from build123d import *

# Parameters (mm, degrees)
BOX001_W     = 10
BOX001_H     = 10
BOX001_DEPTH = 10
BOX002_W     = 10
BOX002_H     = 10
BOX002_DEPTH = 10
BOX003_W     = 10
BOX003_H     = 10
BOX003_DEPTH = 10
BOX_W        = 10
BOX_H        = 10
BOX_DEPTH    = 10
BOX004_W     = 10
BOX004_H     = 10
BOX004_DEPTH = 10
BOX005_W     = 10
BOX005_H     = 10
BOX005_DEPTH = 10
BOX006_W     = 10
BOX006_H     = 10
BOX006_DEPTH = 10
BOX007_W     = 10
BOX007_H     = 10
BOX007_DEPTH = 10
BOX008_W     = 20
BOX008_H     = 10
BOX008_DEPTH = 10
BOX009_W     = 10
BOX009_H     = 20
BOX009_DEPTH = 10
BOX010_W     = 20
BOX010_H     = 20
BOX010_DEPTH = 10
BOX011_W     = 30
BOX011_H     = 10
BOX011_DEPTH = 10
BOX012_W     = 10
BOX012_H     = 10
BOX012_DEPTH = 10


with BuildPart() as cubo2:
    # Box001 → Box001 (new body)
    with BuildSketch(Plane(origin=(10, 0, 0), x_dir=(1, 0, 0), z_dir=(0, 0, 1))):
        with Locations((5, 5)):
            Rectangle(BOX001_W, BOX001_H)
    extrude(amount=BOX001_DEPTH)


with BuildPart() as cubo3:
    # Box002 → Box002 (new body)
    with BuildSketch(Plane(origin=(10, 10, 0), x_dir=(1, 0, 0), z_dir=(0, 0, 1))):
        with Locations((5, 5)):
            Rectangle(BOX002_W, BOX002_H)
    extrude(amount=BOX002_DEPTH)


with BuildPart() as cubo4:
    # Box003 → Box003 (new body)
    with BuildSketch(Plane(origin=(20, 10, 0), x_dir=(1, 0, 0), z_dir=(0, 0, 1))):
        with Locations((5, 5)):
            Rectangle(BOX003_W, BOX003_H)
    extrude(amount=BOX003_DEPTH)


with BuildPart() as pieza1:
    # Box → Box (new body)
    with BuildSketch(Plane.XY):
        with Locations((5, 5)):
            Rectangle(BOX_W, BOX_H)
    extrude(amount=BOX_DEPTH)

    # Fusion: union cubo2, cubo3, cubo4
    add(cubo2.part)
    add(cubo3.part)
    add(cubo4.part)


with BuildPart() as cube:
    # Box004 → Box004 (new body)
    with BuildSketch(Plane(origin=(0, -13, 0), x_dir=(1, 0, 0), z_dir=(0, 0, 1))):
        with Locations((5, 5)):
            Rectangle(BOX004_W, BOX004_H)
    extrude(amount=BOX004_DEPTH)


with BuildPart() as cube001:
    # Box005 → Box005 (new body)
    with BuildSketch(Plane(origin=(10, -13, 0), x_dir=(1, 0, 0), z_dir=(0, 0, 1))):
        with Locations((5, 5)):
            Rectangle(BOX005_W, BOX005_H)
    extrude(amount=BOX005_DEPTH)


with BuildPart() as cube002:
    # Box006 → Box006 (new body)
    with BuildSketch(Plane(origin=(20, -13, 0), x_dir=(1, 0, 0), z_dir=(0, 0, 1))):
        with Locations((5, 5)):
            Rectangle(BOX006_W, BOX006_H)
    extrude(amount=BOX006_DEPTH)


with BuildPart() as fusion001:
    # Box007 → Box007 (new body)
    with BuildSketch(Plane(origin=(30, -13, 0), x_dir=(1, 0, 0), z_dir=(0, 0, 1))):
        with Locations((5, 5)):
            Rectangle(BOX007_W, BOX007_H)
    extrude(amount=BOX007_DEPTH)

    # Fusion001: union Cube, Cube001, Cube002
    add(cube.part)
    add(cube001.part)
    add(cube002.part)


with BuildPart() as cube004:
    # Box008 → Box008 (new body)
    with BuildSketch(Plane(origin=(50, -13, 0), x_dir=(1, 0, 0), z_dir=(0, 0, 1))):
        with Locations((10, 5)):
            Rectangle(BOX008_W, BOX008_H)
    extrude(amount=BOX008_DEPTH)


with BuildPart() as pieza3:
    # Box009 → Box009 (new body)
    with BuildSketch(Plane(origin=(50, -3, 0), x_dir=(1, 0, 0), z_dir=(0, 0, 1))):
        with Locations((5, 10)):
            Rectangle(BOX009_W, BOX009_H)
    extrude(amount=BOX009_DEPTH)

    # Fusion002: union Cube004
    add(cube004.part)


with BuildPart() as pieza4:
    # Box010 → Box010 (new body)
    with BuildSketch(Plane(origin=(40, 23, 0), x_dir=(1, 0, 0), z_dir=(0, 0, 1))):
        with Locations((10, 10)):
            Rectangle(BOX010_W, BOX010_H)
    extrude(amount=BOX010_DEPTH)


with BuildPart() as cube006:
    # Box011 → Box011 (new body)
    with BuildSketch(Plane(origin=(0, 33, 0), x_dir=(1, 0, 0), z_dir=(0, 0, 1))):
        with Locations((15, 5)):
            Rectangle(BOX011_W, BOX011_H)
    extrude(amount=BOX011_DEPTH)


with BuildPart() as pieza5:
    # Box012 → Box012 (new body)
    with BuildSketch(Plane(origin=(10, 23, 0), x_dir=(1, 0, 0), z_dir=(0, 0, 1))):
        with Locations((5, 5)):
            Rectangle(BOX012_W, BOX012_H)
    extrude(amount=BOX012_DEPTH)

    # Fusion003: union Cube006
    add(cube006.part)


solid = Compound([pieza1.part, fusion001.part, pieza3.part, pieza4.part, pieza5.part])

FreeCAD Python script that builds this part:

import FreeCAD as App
import Part
import Sketcher


def add_polygon(sketch, points):
    """Adds a closed chain of lines whose ends are joined by coincident constraints."""
    first, n = sketch.GeometryCount, len(points)
    for a, b in zip(points, points[1:] + points[:1]):
        sketch.addGeometry(Part.LineSegment(App.Vector(*a, 0), App.Vector(*b, 0)), False)
    for i in range(n):
        sketch.addConstraint(Sketcher.Constraint("Coincident", first + i, 2, first + (i + 1) % n, 1))

doc = App.newDocument("Part")
body = doc.addObject("PartDesign::Body", "Body")

# Sketch on XY plane
sketch1 = body.newObject("Sketcher::SketchObject", "Sketch")
sketch1.AttachmentSupport = (doc.getObject("XY_Plane"), [""])
sketch1.MapMode = "FlatFace"
add_polygon(sketch1, [(10, 10), (10, 0), (20, 0), (20, 10)])  # lines 0-3
sketch1.addConstraint([
    Sketcher.Constraint("Vertical", 0),
    Sketcher.Constraint("Horizontal", 1),
    Sketcher.Constraint("Vertical", 2),
    Sketcher.Constraint("Horizontal", 3),
    Sketcher.Constraint("PointOnObject", 0, 2, -1),
    Sketcher.Constraint("Equal", 3, 0),
    Sketcher.Constraint("DistanceX", 1, 1, 1, 2, 10.0),
    Sketcher.Constraint("DistanceX", -1, 1, 0, 2, 10.0),
])
pad1 = body.newObject("PartDesign::Pad", "Pad")
pad1.Profile = sketch1
pad1.Length = 10
body2 = doc.addObject("PartDesign::Body", "Body001")

# Sketch on XY plane
sketch2 = body2.newObject("Sketcher::SketchObject", "Sketch001")
sketch2.AttachmentSupport = (doc.getObject("XY_Plane001"), [""])
sketch2.MapMode = "FlatFace"
add_polygon(sketch2, [(10, 20), (10, 10), (20, 10), (20, 20)])  # lines 0-3
sketch2.addConstraint([
    Sketcher.Constraint("Vertical", 0),
    Sketcher.Constraint("Horizontal", 1),
    Sketcher.Constraint("Vertical", 2),
    Sketcher.Constraint("Horizontal", 3),
    Sketcher.Constraint("Equal", 3, 0),
    Sketcher.Constraint("DistanceX", 1, 1, 1, 2, 10.0),
    Sketcher.Constraint("DistanceX", -1, 1, 0, 2, 10.0),
    Sketcher.Constraint("DistanceY", -1, 1, 0, 2, 10.0),
])
pad2 = body2.newObject("PartDesign::Pad", "Pad001")
pad2.Profile = sketch2
pad2.Length = 10
body3 = doc.addObject("PartDesign::Body", "Body002")

# Sketch on XY plane
sketch3 = body3.newObject("Sketcher::SketchObject", "Sketch002")
sketch3.AttachmentSupport = (doc.getObject("XY_Plane002"), [""])
sketch3.MapMode = "FlatFace"
add_polygon(sketch3, [(20, 20), (20, 10), (30, 10), (30, 20)])  # lines 0-3
sketch3.addConstraint([
    Sketcher.Constraint("Vertical", 0),
    Sketcher.Constraint("Horizontal", 1),
    Sketcher.Constraint("Vertical", 2),
    Sketcher.Constraint("Horizontal", 3),
    Sketcher.Constraint("Equal", 3, 0),
    Sketcher.Constraint("DistanceX", 1, 1, 1, 2, 10.0),
    Sketcher.Constraint("DistanceX", -1, 1, 0, 2, 20.0),
    Sketcher.Constraint("DistanceY", -1, 1, 0, 2, 10.0),
])
pad3 = body3.newObject("PartDesign::Pad", "Pad002")
pad3.Profile = sketch3
pad3.Length = 10
body4 = doc.addObject("PartDesign::Body", "Body003")

# Sketch on XY plane
sketch4 = body4.newObject("Sketcher::SketchObject", "Sketch003")
sketch4.AttachmentSupport = (doc.getObject("XY_Plane003"), [""])
sketch4.MapMode = "FlatFace"
add_polygon(sketch4, [(0, 10), (0, 0), (10, 0), (10, 10)])  # lines 0-3
sketch4.addConstraint([
    Sketcher.Constraint("Vertical", 0),
    Sketcher.Constraint("Horizontal", 1),
    Sketcher.Constraint("Vertical", 2),
    Sketcher.Constraint("Horizontal", 3),
    Sketcher.Constraint("Coincident", 0, 2, -1, 1),
    Sketcher.Constraint("Equal", 3, 0),
    Sketcher.Constraint("DistanceX", 1, 1, 1, 2, 10.0),
])
pad4 = body4.newObject("PartDesign::Pad", "Pad003")
pad4.Profile = sketch4
pad4.Length = 10
doc.recompute()

boolean = body4.newObject("PartDesign::Boolean", "Boolean")
boolean.Type = "Fuse"
boolean.addObjects([body])
doc.recompute()

boolean2 = body4.newObject("PartDesign::Boolean", "Boolean001")
boolean2.Type = "Fuse"
boolean2.addObjects([body2])
doc.recompute()

boolean3 = body4.newObject("PartDesign::Boolean", "Boolean002")
boolean3.Type = "Fuse"
boolean3.addObjects([body3])
body5 = doc.addObject("PartDesign::Body", "Body004")

# Sketch on XY plane
sketch5 = body5.newObject("Sketcher::SketchObject", "Sketch004")
sketch5.AttachmentSupport = (doc.getObject("XY_Plane004"), [""])
sketch5.MapMode = "FlatFace"
add_polygon(sketch5, [(0, -3), (0, -13), (10, -13), (10, -3)])  # lines 0-3
sketch5.addConstraint([
    Sketcher.Constraint("Vertical", 0),
    Sketcher.Constraint("Horizontal", 1),
    Sketcher.Constraint("Vertical", 2),
    Sketcher.Constraint("Horizontal", 3),
    Sketcher.Constraint("PointOnObject", 0, 2, -2),
    Sketcher.Constraint("Equal", 3, 0),
    Sketcher.Constraint("DistanceX", 1, 1, 1, 2, 10.0),
    Sketcher.Constraint("DistanceY", 0, 2, -1, 1, 13.0),
])
pad5 = body5.newObject("PartDesign::Pad", "Pad004")
pad5.Profile = sketch5
pad5.Length = 10
body6 = doc.addObject("PartDesign::Body", "Body005")

# Sketch on XY plane
sketch6 = body6.newObject("Sketcher::SketchObject", "Sketch005")
sketch6.AttachmentSupport = (doc.getObject("XY_Plane005"), [""])
sketch6.MapMode = "FlatFace"
add_polygon(sketch6, [(10, -3), (10, -13), (20, -13), (20, -3)])  # lines 0-3
sketch6.addConstraint([
    Sketcher.Constraint("Vertical", 0),
    Sketcher.Constraint("Horizontal", 1),
    Sketcher.Constraint("Vertical", 2),
    Sketcher.Constraint("Horizontal", 3),
    Sketcher.Constraint("Equal", 3, 0),
    Sketcher.Constraint("DistanceX", 1, 1, 1, 2, 10.0),
    Sketcher.Constraint("DistanceX", -1, 1, 0, 2, 10.0),
    Sketcher.Constraint("DistanceY", 0, 2, -1, 1, 13.0),
])
pad6 = body6.newObject("PartDesign::Pad", "Pad005")
pad6.Profile = sketch6
pad6.Length = 10
body7 = doc.addObject("PartDesign::Body", "Body006")

# Sketch on XY plane
sketch7 = body7.newObject("Sketcher::SketchObject", "Sketch006")
sketch7.AttachmentSupport = (doc.getObject("XY_Plane006"), [""])
sketch7.MapMode = "FlatFace"
add_polygon(sketch7, [(20, -3), (20, -13), (30, -13), (30, -3)])  # lines 0-3
sketch7.addConstraint([
    Sketcher.Constraint("Vertical", 0),
    Sketcher.Constraint("Horizontal", 1),
    Sketcher.Constraint("Vertical", 2),
    Sketcher.Constraint("Horizontal", 3),
    Sketcher.Constraint("Equal", 3, 0),
    Sketcher.Constraint("DistanceX", 1, 1, 1, 2, 10.0),
    Sketcher.Constraint("DistanceX", -1, 1, 0, 2, 20.0),
    Sketcher.Constraint("DistanceY", 0, 2, -1, 1, 13.0),
])
pad7 = body7.newObject("PartDesign::Pad", "Pad006")
pad7.Profile = sketch7
pad7.Length = 10
body8 = doc.addObject("PartDesign::Body", "Body007")
body8.AllowCompound = True

# Sketch on XY plane
sketch8 = body8.newObject("Sketcher::SketchObject", "Sketch007")
sketch8.AttachmentSupport = (doc.getObject("XY_Plane007"), [""])
sketch8.MapMode = "FlatFace"
add_polygon(sketch8, [(30, -3), (30, -13), (40, -13), (40, -3)])  # lines 0-3
sketch8.addConstraint([
    Sketcher.Constraint("Vertical", 0),
    Sketcher.Constraint("Horizontal", 1),
    Sketcher.Constraint("Vertical", 2),
    Sketcher.Constraint("Horizontal", 3),
    Sketcher.Constraint("Equal", 3, 0),
    Sketcher.Constraint("DistanceX", 1, 1, 1, 2, 10.0),
    Sketcher.Constraint("DistanceX", -1, 1, 0, 2, 30.0),
    Sketcher.Constraint("DistanceY", 0, 2, -1, 1, 13.0),
])
pad8 = body8.newObject("PartDesign::Pad", "Pad007")
pad8.Profile = sketch8
pad8.Length = 10
doc.recompute()

boolean4 = body8.newObject("PartDesign::Boolean", "Boolean003")
boolean4.Type = "Fuse"
boolean4.addObjects([body5])
doc.recompute()

boolean5 = body8.newObject("PartDesign::Boolean", "Boolean004")
boolean5.Type = "Fuse"
boolean5.addObjects([body6])
doc.recompute()

boolean6 = body8.newObject("PartDesign::Boolean", "Boolean005")
boolean6.Type = "Fuse"
boolean6.addObjects([body7])
body9 = doc.addObject("PartDesign::Body", "Body008")

# Sketch on XY plane
sketch9 = body9.newObject("Sketcher::SketchObject", "Sketch008")
sketch9.AttachmentSupport = (doc.getObject("XY_Plane008"), [""])
sketch9.MapMode = "FlatFace"
add_polygon(sketch9, [(50, -3), (50, -13), (70, -13), (70, -3)])  # lines 0-3
sketch9.addConstraint([
    Sketcher.Constraint("Vertical", 0),
    Sketcher.Constraint("Horizontal", 1),
    Sketcher.Constraint("Vertical", 2),
    Sketcher.Constraint("Horizontal", 3),
    Sketcher.Constraint("DistanceX", 1, 1, 1, 2, 20.0),
    Sketcher.Constraint("DistanceY", 0, 2, 0, 1, 10.0),
    Sketcher.Constraint("DistanceX", -1, 1, 0, 2, 50.0),
    Sketcher.Constraint("DistanceY", 0, 2, -1, 1, 13.0),
])
pad9 = body9.newObject("PartDesign::Pad", "Pad008")
pad9.Profile = sketch9
pad9.Length = 10
body10 = doc.addObject("PartDesign::Body", "Body009")

# Sketch on XY plane
sketch10 = body10.newObject("Sketcher::SketchObject", "Sketch009")
sketch10.AttachmentSupport = (doc.getObject("XY_Plane009"), [""])
sketch10.MapMode = "FlatFace"
add_polygon(sketch10, [(50, 17), (50, -3), (60, -3), (60, 17)])  # lines 0-3
sketch10.addConstraint([
    Sketcher.Constraint("Vertical", 0),
    Sketcher.Constraint("Horizontal", 1),
    Sketcher.Constraint("Vertical", 2),
    Sketcher.Constraint("Horizontal", 3),
    Sketcher.Constraint("DistanceX", 1, 1, 1, 2, 10.0),
    Sketcher.Constraint("DistanceY", 0, 2, 0, 1, 20.0),
    Sketcher.Constraint("DistanceX", -1, 1, 0, 2, 50.0),
    Sketcher.Constraint("DistanceY", 0, 2, -1, 1, 3.0),
])
pad10 = body10.newObject("PartDesign::Pad", "Pad009")
pad10.Profile = sketch10
pad10.Length = 10
doc.recompute()

boolean7 = body10.newObject("PartDesign::Boolean", "Boolean006")
boolean7.Type = "Fuse"
boolean7.addObjects([body9])
body11 = doc.addObject("PartDesign::Body", "Body010")

# Sketch on XY plane
sketch11 = body11.newObject("Sketcher::SketchObject", "Sketch010")
sketch11.AttachmentSupport = (doc.getObject("XY_Plane010"), [""])
sketch11.MapMode = "FlatFace"
add_polygon(sketch11, [(40, 43), (40, 23), (60, 23), (60, 43)])  # lines 0-3
sketch11.addConstraint([
    Sketcher.Constraint("Vertical", 0),
    Sketcher.Constraint("Horizontal", 1),
    Sketcher.Constraint("Vertical", 2),
    Sketcher.Constraint("Horizontal", 3),
    Sketcher.Constraint("Equal", 3, 0),
    Sketcher.Constraint("DistanceX", 1, 1, 1, 2, 20.0),
    Sketcher.Constraint("DistanceX", -1, 1, 0, 2, 40.0),
    Sketcher.Constraint("DistanceY", -1, 1, 0, 2, 23.0),
])
pad11 = body11.newObject("PartDesign::Pad", "Pad010")
pad11.Profile = sketch11
pad11.Length = 10
body12 = doc.addObject("PartDesign::Body", "Body011")

# Sketch on XY plane
sketch12 = body12.newObject("Sketcher::SketchObject", "Sketch011")
sketch12.AttachmentSupport = (doc.getObject("XY_Plane011"), [""])
sketch12.MapMode = "FlatFace"
add_polygon(sketch12, [(0, 43), (0, 33), (30, 33), (30, 43)])  # lines 0-3
sketch12.addConstraint([
    Sketcher.Constraint("Vertical", 0),
    Sketcher.Constraint("Horizontal", 1),
    Sketcher.Constraint("Vertical", 2),
    Sketcher.Constraint("Horizontal", 3),
    Sketcher.Constraint("PointOnObject", 0, 2, -2),
    Sketcher.Constraint("DistanceX", 1, 1, 1, 2, 30.0),
    Sketcher.Constraint("DistanceY", 0, 2, 0, 1, 10.0),
    Sketcher.Constraint("DistanceY", -1, 1, 0, 2, 33.0),
])
pad12 = body12.newObject("PartDesign::Pad", "Pad011")
pad12.Profile = sketch12
pad12.Length = 10
body13 = doc.addObject("PartDesign::Body", "Body012")

# Sketch on XY plane
sketch13 = body13.newObject("Sketcher::SketchObject", "Sketch012")
sketch13.AttachmentSupport = (doc.getObject("XY_Plane012"), [""])
sketch13.MapMode = "FlatFace"
add_polygon(sketch13, [(10, 33), (10, 23), (20, 23), (20, 33)])  # lines 0-3
sketch13.addConstraint([
    Sketcher.Constraint("Vertical", 0),
    Sketcher.Constraint("Horizontal", 1),
    Sketcher.Constraint("Vertical", 2),
    Sketcher.Constraint("Horizontal", 3),
    Sketcher.Constraint("Equal", 3, 0),
    Sketcher.Constraint("DistanceX", 1, 1, 1, 2, 10.0),
    Sketcher.Constraint("DistanceX", -1, 1, 0, 2, 10.0),
    Sketcher.Constraint("DistanceY", -1, 1, 0, 2, 23.0),
])
pad13 = body13.newObject("PartDesign::Pad", "Pad012")
pad13.Profile = sketch13
pad13.Length = 10
doc.recompute()

boolean8 = body13.newObject("PartDesign::Boolean", "Boolean007")
boolean8.Type = "Fuse"
boolean8.addObjects([body12])

doc.recompute()
